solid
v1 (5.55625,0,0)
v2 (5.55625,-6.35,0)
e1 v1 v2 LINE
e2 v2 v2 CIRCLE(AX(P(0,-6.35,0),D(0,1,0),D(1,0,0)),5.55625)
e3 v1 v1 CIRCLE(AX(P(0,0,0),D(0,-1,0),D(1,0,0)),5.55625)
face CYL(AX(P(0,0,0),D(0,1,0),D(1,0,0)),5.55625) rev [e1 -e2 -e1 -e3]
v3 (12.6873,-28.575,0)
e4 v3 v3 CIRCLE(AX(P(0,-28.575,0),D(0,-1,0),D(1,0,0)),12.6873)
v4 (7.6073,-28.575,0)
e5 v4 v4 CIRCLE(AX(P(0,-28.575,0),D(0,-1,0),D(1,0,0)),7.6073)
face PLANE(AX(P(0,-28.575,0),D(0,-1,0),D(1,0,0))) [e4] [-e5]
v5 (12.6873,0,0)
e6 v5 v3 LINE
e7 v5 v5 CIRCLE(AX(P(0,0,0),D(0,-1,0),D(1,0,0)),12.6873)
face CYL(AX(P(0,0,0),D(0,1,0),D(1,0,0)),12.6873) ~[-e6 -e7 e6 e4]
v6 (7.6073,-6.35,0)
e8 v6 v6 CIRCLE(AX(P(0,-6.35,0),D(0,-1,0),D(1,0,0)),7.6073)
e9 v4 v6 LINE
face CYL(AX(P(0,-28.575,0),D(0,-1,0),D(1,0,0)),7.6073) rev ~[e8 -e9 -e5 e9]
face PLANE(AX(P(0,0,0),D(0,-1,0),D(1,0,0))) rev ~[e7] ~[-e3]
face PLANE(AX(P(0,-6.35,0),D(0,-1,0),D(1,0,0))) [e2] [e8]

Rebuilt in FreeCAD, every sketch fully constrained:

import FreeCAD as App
import Part
import Sketcher
from FreeCAD import Vector
Q = App.Units.Quantity

doc = App.newDocument("Part")
body = doc.addObject("PartDesign::Body", "Body")

# Sketch on XZ plane
sketch1 = doc.addObject("Sketcher::SketchObject", "Sketch")
body.addObject(sketch1)
sketch1.AttachmentSupport = (doc.XZ_Plane, [""])
sketch1.MapMode = "FlatFace"
sketch1.addGeometry(Part.Circle(Vector(0, 0, 0), Vector(0, 0, 1), 13), False)
sketch1.addGeometry(Part.Circle(Vector(0, 0, 0), Vector(0, 0, 1), 6), False)
sketch1.addConstraint(Sketcher.Constraint("Coincident", 0, 3, -1, 1))
sketch1.addConstraint(Sketcher.Constraint("Coincident", 1, 3, -1, 1))
sketch1.addConstraint(Sketcher.Constraint("Diameter", 0, Q("0.999 in")))
sketch1.addConstraint(Sketcher.Constraint("Diameter", 1, Q("0.4375 in")))
pad1 = doc.addObject("PartDesign::Pad", "Pad")
body.addObject(pad1)
pad1.Profile = sketch1
pad1.Length = Q("1.125 in")

# Sketch on XZ plane
sketch2 = doc.addObject("Sketcher::SketchObject", "Sketch001")
body.addObject(sketch2)
sketch2.AttachmentSupport = (doc.XZ_Plane, [""])
sketch2.MapMode = "FlatFace"
sketch2.AttachmentOffset = App.Placement(Vector(0, 0, 1.125 * 25.4), App.Rotation())
sketch2.addGeometry(Part.Circle(Vector(0, 0, 0), Vector(0, 0, 1), 8), False)
sketch2.addConstraint(Sketcher.Constraint("Coincident", 0, 3, -1, 1))
sketch2.addConstraint(Sketcher.Constraint("Diameter", 0, Q("0.599 in")))
pocket1 = doc.addObject("PartDesign::Pocket", "Pocket")
body.addObject(pocket1)
pocket1.Profile = sketch2
pocket1.Length = Q("0.875 in")

# Sketch on XZ plane
sketch3 = doc.addObject("Sketcher::SketchObject", "Sketch002")
body.addObject(sketch3)
sketch3.AttachmentSupport = (doc.XZ_Plane, [""])
sketch3.MapMode = "FlatFace"
sketch3.AttachmentOffset = App.Placement(Vector(0, 0, 0.25 * 25.4), App.Rotation())
sketch3.addGeometry(Part.Circle(Vector(0, 0, 0), Vector(0, 0, 1), 6), False)
sketch3.addConstraint(Sketcher.Constraint("Coincident", 0, 3, -1, 1))
sketch3.addConstraint(Sketcher.Constraint("Diameter", 0, Q("0.4375 in")))
pocket2 = doc.addObject("PartDesign::Pocket", "Pocket001")
body.addObject(pocket2)
pocket2.Profile = sketch3
pocket2.Type = "ThroughAll"

doc.recompute()
